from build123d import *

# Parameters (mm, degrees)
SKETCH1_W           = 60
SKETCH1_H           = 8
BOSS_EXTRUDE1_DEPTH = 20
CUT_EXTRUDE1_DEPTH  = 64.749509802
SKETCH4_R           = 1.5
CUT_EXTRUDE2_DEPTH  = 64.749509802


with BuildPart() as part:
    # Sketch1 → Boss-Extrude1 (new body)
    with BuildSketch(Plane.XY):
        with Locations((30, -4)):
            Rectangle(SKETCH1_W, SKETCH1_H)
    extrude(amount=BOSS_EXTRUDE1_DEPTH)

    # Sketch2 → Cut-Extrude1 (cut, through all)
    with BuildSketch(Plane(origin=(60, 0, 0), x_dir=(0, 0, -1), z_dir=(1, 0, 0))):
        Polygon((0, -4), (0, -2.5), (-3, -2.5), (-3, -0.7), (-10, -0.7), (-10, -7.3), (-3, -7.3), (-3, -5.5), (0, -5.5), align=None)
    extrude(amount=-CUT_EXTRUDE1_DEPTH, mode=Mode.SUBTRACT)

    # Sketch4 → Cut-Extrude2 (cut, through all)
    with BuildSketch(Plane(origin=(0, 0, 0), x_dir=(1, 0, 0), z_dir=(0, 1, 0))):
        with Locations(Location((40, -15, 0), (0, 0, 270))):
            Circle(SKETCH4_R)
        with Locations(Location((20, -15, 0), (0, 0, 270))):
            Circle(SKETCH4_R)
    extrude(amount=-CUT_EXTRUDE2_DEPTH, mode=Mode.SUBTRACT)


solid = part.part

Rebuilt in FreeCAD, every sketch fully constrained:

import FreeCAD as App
import Part
import Sketcher

V = App.Vector


def add_polygon(sketch, points):
    """Adds a closed chain of lines whose ends are joined by coincident constraints."""
    first, n = sketch.GeometryCount, len(points)
    for a, b in zip(points, points[1:] + points[:1]):
        sketch.addGeometry(Part.LineSegment(App.Vector(*a, 0), App.Vector(*b, 0)), False)
    for i in range(n):
        sketch.addConstraint(Sketcher.Constraint("Coincident", first + i, 2, first + (i + 1) % n, 1))

doc = App.newDocument("Part")
params = doc.addObject("Spreadsheet::Sheet", "Params")
for row, (alias, value) in enumerate([
    ("sketch1_width", "60 mm"),
    ("sketch1_height", "8 mm"),
    ("pad1_length", "20 mm"),
    ("sketch2_width", "3 mm"),
    ("sketch2_height", "7 mm"),
    ("sketch2_width2", "1.8 mm"),
    ("sketch3_diameter", "3 mm"),
], start=1):
    params.set(f"A{row}", alias)
    params.set(f"B{row}", "=" + value)
    params.setAlias(f"B{row}", alias)

body = doc.addObject("PartDesign::Body", "Body")

sketch1 = doc.addObject("Sketcher::SketchObject", "Sketch")
body.addObject(sketch1)
sketch1.AttachmentSupport = (doc.XY_Plane, [""])
sketch1.MapMode = "FlatFace"
add_polygon(sketch1, [(0, 0), (0, -8), (60, -8), (60, 0)])
sketch1.addConstraint([
    Sketcher.Constraint("Vertical", 0),
    Sketcher.Constraint("Horizontal", 1),
    Sketcher.Constraint("Vertical", 2),
    Sketcher.Constraint("Horizontal", 3),
    Sketcher.Constraint("Coincident", 3, 2, -1, 1),
    Sketcher.Constraint("DistanceX", 1, 1, 1, 2, 60.0),
    Sketcher.Constraint("DistanceY", 0, 2, 0, 1, 8.0),
])
sketch1.setExpression("Constraints[9]", "Params.sketch1_width")
sketch1.setExpression("Constraints[10]", "Params.sketch1_height")
pad1 = doc.addObject("PartDesign::Pad", "Pad")
body.addObject(pad1)
pad1.Profile = sketch1
pad1.setExpression("Length", "Params.pad1_length")

sketch2 = doc.addObject("Sketcher::SketchObject", "Sketch001")
body.addObject(sketch2)
sketch2.AttachmentSupport = (doc.YZ_Plane, [""])
sketch2.MapMode = "FlatFace"
sketch2.AttachmentOffset = App.Placement(V(0, 0, 60), App.Rotation())
add_polygon(sketch2, [(-2.5, 0), (-2.5, 3), (-0.7, 3), (-0.7, 10), (-7.3, 10), (-7.3, 3), (-5.5, 3), (-5.5, 0)])
sketch2.addConstraint([
    Sketcher.Constraint("Vertical", 0),
    Sketcher.Constraint("Horizontal", 1),
    Sketcher.Constraint("Vertical", 2),
    Sketcher.Constraint("Horizontal", 3),
    Sketcher.Constraint("Vertical", 4),
    Sketcher.Constraint("Horizontal", 5),
    Sketcher.Constraint("Vertical", 6),
    Sketcher.Constraint("Horizontal", 7),
    Sketcher.Constraint("PointOnObject", 6, 2, -1),
    Sketcher.Constraint("Horizontal", 1, 2, 4, 2),
    Sketcher.Constraint("Equal", 1, 5),
    Sketcher.Constraint("Equal", 7, 0),
    Sketcher.Constraint("DistanceX", 7, 1, 7, 2, 3.0),
    Sketcher.Constraint("DistanceY", 2, 1, 2, 2, 7.0),
    Sketcher.Constraint("DistanceX", 1, 1, 1, 2, 1.8),
    Sketcher.Constraint("DistanceX", 0, 2, -1, 1, 2.5),
])
sketch2.setExpression("Constraints[20]", "Params.sketch2_width")
sketch2.setExpression("Constraints[21]", "Params.sketch2_height")
sketch2.setExpression("Constraints[22]", "Params.sketch2_width2")
pocket1 = doc.addObject("PartDesign::Pocket", "Pocket")
body.addObject(pocket1)
pocket1.Profile = sketch2
pocket1.Type = "ThroughAll"

sketch3 = doc.addObject("Sketcher::SketchObject", "Sketch002")
body.addObject(sketch3)
sketch3.AttachmentSupport = (doc.XZ_Plane, [""])
sketch3.MapMode = "FlatFace"
sketch3.addGeometry([
    Part.Circle(V(40, 15, 0), V(0, 0, 1), 1.5),
    Part.Circle(V(20, 15, 0), V(0, 0, 1), 1.5),
], False)
sketch3.addConstraint([
    Sketcher.Constraint("Equal", 0, 1),
    Sketcher.Constraint("Horizontal", 0, 3, 1, 3),
    Sketcher.Constraint("Diameter", 0, 3.0),
    Sketcher.Constraint("DistanceX", -1, 1, 0, 3, 40.0),
    Sketcher.Constraint("DistanceY", -1, 1, 0, 3, 15.0),
    Sketcher.Constraint("DistanceX", -1, 1, 1, 3, 20.0),
])
sketch3.setExpression("Constraints[2]", "Params.sketch3_diameter")
pocket2 = doc.addObject("PartDesign::Pocket", "Pocket001")
body.addObject(pocket2)
pocket2.Profile = sketch3
pocket2.Type = "ThroughAll"
pocket2.Reversed = True

doc.recompute()
